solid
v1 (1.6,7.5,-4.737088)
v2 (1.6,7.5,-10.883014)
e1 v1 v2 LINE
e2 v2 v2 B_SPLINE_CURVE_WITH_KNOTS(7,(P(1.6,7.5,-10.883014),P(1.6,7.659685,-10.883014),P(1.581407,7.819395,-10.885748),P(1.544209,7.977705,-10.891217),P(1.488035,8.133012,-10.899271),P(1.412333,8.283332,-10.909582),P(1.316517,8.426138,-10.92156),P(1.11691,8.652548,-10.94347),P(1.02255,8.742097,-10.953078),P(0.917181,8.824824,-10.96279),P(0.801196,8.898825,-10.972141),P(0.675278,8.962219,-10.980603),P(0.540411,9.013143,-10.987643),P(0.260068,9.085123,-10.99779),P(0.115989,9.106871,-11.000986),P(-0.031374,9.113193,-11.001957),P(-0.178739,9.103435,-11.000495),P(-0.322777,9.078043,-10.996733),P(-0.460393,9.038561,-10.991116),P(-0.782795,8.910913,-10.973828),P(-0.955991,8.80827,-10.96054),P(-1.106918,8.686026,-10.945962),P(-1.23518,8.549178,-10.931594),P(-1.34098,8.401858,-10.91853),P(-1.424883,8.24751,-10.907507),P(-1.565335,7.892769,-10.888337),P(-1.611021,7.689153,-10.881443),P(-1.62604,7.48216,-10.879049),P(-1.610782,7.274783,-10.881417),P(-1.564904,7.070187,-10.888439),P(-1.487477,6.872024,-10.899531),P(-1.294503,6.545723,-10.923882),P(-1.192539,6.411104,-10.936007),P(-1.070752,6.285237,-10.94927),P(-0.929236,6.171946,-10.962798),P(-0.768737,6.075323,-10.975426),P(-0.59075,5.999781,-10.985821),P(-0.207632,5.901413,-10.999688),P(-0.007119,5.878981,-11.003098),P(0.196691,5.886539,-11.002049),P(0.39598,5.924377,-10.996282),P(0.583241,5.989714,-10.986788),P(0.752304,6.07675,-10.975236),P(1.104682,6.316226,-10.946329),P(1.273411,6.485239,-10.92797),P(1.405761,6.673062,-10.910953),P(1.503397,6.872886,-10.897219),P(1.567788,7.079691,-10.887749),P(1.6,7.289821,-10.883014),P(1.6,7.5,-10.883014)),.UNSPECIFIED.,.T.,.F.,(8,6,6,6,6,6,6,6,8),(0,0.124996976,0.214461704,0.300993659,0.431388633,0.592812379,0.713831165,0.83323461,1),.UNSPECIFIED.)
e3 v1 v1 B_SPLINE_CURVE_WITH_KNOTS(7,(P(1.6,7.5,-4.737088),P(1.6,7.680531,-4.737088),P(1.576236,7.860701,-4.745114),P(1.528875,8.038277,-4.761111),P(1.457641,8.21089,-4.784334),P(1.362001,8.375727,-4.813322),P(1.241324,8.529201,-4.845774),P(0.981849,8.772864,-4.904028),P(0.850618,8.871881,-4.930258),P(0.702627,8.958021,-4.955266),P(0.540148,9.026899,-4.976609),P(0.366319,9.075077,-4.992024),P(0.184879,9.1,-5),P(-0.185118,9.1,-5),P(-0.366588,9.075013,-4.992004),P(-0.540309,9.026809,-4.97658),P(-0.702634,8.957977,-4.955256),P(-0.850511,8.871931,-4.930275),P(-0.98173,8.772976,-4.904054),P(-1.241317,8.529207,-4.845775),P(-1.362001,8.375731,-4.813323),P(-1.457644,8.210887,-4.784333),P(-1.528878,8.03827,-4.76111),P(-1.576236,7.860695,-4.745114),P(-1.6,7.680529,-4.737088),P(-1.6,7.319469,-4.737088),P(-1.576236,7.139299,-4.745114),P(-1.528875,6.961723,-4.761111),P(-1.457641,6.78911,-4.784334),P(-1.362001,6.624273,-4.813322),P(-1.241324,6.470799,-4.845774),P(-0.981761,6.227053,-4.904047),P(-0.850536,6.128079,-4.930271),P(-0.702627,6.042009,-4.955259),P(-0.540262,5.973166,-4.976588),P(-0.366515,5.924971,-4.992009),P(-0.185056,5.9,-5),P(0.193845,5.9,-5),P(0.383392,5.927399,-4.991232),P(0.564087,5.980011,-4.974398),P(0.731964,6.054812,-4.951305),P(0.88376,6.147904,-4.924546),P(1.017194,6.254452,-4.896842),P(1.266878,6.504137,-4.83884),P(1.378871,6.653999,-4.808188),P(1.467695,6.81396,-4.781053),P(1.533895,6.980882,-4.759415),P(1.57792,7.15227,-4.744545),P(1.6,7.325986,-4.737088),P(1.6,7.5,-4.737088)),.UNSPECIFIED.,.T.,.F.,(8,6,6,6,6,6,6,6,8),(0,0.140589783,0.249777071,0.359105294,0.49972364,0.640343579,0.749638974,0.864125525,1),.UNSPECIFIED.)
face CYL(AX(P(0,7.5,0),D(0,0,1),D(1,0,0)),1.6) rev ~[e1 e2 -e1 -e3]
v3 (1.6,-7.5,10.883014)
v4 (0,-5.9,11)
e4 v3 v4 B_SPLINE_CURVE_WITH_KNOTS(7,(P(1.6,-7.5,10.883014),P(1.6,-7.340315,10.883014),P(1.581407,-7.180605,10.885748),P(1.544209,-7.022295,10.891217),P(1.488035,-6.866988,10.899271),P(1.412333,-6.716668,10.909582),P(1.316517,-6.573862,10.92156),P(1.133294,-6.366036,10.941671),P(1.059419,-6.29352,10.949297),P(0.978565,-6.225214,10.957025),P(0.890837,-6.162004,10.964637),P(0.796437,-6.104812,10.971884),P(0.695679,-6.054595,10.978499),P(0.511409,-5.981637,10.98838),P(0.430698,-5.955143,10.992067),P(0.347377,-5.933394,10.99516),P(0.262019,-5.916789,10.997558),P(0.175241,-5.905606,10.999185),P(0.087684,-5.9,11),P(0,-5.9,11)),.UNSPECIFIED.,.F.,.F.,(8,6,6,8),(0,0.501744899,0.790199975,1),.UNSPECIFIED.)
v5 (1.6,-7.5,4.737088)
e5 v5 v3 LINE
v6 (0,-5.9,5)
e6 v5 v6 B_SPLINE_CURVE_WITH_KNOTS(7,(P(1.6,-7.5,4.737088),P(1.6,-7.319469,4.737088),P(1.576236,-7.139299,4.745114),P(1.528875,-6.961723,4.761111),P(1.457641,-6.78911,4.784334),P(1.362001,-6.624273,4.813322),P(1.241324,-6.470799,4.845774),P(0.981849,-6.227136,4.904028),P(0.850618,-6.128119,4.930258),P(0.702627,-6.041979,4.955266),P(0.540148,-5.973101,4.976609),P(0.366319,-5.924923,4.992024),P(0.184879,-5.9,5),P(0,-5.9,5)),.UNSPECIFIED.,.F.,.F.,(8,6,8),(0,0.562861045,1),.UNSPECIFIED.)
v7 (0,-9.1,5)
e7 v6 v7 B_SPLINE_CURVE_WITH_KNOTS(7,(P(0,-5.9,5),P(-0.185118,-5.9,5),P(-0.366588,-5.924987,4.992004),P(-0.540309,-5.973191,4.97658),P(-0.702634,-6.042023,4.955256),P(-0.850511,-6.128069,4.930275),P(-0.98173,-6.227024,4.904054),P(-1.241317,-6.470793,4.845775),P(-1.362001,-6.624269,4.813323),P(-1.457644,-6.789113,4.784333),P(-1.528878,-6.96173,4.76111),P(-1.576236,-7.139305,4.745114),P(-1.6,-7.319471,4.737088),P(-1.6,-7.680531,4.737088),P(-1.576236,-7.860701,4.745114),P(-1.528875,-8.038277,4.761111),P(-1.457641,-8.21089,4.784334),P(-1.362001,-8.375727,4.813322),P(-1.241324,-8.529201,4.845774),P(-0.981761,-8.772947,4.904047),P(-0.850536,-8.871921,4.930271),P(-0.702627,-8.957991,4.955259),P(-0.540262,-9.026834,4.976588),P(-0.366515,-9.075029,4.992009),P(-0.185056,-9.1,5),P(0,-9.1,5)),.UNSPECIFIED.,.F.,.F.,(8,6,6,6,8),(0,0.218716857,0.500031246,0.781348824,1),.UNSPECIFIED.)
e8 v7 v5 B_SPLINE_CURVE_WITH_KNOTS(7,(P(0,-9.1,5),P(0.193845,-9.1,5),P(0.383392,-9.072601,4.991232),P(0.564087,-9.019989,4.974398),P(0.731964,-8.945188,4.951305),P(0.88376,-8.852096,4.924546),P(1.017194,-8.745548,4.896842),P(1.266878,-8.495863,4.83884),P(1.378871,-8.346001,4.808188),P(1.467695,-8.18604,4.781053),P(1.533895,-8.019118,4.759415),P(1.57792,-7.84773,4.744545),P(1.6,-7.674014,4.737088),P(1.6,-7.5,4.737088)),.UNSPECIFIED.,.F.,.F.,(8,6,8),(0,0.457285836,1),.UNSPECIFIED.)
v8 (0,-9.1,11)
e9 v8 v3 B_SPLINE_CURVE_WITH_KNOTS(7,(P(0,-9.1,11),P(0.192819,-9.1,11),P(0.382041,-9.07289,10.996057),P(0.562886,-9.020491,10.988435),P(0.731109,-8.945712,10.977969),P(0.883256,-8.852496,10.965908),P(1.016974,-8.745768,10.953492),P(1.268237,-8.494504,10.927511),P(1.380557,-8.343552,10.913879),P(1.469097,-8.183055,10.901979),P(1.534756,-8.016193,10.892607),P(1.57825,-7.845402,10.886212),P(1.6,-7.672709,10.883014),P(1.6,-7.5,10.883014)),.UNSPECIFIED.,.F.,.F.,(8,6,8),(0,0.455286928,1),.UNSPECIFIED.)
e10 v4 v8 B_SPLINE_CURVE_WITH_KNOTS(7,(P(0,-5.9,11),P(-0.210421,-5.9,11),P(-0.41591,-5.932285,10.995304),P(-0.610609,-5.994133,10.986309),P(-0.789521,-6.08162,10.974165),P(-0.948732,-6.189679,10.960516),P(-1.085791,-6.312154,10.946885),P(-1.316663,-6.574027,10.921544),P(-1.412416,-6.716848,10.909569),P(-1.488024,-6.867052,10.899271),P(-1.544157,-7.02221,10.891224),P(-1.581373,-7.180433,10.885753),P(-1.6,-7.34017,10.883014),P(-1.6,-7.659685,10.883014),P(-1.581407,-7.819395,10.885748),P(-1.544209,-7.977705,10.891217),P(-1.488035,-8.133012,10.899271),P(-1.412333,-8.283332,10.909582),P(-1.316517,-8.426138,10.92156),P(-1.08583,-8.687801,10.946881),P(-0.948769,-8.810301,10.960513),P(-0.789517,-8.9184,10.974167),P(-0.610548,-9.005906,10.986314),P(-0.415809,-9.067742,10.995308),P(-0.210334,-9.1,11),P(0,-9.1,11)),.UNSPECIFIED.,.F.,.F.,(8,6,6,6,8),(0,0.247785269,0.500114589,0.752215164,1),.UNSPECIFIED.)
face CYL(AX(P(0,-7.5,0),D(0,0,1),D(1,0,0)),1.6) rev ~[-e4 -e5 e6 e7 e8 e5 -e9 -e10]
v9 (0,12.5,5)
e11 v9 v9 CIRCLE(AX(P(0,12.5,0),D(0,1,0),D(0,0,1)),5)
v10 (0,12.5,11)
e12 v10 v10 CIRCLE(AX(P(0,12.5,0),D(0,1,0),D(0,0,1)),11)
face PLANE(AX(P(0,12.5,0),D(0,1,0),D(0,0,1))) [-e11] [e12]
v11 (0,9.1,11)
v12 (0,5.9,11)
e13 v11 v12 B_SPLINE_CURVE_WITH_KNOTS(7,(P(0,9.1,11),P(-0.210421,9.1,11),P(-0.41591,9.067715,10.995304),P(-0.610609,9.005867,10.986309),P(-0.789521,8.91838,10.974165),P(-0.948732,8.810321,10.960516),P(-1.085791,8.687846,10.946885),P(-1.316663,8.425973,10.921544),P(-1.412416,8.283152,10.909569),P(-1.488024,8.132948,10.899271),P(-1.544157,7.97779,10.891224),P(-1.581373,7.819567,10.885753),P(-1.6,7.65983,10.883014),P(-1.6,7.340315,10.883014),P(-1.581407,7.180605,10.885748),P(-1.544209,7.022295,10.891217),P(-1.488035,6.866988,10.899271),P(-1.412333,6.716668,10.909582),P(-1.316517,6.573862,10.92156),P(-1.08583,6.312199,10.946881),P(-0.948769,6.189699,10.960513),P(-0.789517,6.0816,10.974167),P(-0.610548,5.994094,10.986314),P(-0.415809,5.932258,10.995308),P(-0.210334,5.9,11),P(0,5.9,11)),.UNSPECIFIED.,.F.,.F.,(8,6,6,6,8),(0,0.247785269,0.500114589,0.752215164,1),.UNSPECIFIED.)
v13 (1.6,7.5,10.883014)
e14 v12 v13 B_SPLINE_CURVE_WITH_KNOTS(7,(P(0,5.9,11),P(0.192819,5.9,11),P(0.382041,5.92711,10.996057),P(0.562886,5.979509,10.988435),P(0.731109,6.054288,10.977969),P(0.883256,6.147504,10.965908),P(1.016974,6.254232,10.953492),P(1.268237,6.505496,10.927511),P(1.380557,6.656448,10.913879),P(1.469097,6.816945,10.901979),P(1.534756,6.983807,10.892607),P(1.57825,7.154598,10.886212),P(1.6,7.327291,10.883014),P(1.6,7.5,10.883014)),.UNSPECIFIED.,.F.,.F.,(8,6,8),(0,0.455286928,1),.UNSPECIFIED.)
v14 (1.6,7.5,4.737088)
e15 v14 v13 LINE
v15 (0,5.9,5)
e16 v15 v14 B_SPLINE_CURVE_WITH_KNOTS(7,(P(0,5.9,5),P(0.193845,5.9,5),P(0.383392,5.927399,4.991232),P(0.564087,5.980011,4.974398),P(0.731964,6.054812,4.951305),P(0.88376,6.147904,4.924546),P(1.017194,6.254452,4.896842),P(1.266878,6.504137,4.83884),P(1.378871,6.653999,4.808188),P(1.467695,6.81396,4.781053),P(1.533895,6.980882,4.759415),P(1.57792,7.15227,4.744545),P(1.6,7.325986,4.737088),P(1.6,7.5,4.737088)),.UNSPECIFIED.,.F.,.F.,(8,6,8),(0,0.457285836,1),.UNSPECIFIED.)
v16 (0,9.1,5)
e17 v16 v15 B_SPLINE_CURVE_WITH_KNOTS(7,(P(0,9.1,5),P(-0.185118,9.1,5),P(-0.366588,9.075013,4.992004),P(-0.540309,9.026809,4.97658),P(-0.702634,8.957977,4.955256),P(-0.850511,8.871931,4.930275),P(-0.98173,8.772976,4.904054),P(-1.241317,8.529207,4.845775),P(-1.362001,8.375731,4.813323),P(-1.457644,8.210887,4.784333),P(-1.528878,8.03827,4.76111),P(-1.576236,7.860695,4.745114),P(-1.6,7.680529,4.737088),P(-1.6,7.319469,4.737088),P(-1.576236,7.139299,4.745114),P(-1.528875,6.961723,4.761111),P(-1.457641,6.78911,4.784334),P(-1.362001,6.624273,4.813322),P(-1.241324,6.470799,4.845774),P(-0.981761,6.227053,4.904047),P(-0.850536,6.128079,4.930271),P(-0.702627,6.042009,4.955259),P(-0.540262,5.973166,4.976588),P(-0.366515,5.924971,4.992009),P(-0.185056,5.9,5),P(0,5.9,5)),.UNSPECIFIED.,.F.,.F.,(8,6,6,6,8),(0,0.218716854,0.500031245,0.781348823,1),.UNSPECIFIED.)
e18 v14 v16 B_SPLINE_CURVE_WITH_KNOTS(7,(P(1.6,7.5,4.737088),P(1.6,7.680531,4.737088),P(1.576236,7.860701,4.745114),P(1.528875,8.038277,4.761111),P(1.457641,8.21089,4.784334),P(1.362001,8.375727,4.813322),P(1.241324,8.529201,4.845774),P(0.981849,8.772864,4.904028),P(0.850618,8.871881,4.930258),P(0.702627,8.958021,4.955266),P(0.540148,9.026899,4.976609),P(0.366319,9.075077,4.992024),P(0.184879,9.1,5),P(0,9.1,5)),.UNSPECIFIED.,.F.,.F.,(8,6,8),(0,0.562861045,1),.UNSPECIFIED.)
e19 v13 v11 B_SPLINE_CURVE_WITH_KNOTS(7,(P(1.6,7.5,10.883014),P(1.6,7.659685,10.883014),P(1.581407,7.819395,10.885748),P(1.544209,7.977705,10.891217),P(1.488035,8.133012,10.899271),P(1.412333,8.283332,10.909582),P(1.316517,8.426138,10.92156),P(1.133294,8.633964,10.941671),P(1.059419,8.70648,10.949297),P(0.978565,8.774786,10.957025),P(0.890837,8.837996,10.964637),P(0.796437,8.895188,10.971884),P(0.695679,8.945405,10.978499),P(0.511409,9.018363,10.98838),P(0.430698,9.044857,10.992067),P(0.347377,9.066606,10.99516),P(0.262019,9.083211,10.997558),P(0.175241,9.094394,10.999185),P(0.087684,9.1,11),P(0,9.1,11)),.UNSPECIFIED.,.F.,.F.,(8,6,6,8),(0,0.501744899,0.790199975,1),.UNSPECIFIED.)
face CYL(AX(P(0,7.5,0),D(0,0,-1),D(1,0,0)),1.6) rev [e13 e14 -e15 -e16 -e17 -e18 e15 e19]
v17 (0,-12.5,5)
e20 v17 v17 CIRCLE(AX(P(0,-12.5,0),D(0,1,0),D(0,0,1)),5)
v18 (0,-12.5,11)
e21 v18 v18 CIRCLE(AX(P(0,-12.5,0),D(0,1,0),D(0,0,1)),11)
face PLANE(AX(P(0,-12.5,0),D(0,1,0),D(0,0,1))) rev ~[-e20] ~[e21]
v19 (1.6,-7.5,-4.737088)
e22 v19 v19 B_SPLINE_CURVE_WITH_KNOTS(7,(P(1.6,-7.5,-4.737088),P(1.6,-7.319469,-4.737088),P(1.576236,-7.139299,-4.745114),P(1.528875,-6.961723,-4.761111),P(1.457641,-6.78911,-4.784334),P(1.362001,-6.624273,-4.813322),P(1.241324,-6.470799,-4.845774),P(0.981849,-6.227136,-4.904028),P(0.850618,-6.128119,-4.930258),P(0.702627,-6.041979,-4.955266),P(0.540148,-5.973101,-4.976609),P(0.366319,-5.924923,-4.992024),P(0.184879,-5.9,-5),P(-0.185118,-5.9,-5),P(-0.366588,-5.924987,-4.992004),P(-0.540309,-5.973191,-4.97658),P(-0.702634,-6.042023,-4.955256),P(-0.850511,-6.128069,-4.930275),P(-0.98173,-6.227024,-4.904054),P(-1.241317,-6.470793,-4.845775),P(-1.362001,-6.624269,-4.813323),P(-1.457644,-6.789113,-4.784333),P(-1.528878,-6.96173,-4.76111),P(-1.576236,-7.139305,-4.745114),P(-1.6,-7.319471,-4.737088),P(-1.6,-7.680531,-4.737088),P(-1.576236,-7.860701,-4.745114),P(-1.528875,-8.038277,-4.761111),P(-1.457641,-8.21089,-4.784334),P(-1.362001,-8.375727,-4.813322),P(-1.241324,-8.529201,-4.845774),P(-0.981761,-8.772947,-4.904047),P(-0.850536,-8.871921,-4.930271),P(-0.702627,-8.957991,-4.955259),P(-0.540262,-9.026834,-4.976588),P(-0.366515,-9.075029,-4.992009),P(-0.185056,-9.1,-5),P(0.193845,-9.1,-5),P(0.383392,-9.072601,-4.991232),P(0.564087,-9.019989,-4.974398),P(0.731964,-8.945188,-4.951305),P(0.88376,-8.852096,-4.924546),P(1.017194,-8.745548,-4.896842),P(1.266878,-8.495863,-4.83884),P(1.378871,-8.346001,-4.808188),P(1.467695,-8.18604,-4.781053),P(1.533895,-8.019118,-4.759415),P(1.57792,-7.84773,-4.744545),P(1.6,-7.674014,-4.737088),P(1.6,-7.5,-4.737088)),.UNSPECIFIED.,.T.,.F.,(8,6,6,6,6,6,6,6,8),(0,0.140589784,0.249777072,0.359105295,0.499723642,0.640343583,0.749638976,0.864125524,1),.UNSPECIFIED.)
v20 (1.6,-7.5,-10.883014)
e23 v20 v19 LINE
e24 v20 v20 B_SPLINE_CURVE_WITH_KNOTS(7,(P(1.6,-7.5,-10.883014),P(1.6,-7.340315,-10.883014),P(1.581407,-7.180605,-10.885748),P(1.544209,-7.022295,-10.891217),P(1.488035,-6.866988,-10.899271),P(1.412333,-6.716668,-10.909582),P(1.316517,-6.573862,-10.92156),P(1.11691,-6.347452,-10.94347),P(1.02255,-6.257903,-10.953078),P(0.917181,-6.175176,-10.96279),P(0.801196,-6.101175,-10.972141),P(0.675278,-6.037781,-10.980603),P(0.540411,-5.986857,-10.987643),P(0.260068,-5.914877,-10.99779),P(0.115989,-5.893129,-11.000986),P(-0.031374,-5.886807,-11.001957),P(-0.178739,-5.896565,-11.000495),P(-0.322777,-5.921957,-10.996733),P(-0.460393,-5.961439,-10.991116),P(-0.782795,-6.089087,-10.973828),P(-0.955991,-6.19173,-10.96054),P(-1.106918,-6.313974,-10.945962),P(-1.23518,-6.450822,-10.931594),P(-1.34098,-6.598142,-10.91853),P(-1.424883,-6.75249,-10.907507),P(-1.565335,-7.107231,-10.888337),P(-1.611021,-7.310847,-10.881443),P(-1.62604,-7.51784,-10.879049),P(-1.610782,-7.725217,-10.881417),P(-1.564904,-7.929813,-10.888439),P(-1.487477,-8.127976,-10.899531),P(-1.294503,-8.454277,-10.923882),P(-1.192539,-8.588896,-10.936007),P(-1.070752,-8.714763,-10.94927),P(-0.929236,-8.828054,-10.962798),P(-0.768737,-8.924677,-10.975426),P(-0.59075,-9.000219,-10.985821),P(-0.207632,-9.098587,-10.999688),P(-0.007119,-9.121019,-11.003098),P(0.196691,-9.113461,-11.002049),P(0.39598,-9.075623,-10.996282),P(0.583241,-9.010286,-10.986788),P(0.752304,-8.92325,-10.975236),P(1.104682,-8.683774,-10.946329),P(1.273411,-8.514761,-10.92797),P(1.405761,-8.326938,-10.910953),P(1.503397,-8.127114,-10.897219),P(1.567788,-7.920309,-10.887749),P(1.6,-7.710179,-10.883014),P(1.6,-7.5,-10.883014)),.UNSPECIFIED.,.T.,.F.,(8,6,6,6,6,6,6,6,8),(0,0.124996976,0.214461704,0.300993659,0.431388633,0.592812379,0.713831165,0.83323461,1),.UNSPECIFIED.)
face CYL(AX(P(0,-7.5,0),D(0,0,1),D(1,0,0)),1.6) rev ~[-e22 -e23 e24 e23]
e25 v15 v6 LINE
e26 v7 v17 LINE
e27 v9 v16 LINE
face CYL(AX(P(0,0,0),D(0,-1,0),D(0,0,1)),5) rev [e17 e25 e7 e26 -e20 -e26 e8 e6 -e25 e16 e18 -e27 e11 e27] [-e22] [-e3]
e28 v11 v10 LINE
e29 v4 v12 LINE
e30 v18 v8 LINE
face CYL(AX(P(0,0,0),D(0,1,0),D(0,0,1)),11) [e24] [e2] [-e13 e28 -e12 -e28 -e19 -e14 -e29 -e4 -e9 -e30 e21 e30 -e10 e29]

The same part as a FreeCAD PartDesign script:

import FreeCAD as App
import Part
import Sketcher
from FreeCAD import Vector

doc = App.newDocument("Part")
body = doc.addObject("PartDesign::Body", "Body")

# Sketch on XZ plane
sketch1 = body.newObject("Sketcher::SketchObject", "Sketch")
sketch1.AttachmentSupport = (doc.getObject("XZ_Plane"), [""])
sketch1.MapMode = "FlatFace"
sketch1.addGeometry([
    Part.Circle(Vector(0, 0, 0), Vector(0, 0, 1), 11),
    Part.Circle(Vector(0, 0, 0), Vector(0, 0, 1), 5),
], False)
sketch1.addConstraint([
    Sketcher.Constraint("Coincident", 0, 3, -1, 1),
    Sketcher.Constraint("Coincident", 1, 3, -1, 1),
    Sketcher.Constraint("Diameter", 0, 22.0),
    Sketcher.Constraint("Diameter", 1, 10.0),
])
pad1 = body.newObject("PartDesign::Pad", "Pad")
pad1.Profile = sketch1
pad1.Length = 25
pad1.Midplane = True

# Sketch on XY plane
sketch2 = body.newObject("Sketcher::SketchObject", "Sketch001")
sketch2.AttachmentSupport = (doc.getObject("XY_Plane"), [""])
sketch2.MapMode = "FlatFace"
sketch2.addGeometry([
    Part.Circle(Vector(0, 7.5, 0), Vector(0, 0, 1), 1.6),
    Part.Circle(Vector(0, -7.5, 0), Vector(0, 0, 1), 1.6),
], False)
sketch2.addConstraint([
    Sketcher.Constraint("Equal", 0, 1),
    Sketcher.Constraint("Symmetric", 0, 3, 1, 3, -1, 1),
    Sketcher.Constraint("PointOnObject", 0, 3, -2),
    Sketcher.Constraint("Diameter", 0, 3.2),
    Sketcher.Constraint("DistanceY", 1, 3, 0, 3, 15.0),
])
pocket1 = body.newObject("PartDesign::Pocket", "Pocket")
pocket1.Profile = sketch2
pocket1.Length = 25
pocket1.Midplane = True

doc.recompute()
